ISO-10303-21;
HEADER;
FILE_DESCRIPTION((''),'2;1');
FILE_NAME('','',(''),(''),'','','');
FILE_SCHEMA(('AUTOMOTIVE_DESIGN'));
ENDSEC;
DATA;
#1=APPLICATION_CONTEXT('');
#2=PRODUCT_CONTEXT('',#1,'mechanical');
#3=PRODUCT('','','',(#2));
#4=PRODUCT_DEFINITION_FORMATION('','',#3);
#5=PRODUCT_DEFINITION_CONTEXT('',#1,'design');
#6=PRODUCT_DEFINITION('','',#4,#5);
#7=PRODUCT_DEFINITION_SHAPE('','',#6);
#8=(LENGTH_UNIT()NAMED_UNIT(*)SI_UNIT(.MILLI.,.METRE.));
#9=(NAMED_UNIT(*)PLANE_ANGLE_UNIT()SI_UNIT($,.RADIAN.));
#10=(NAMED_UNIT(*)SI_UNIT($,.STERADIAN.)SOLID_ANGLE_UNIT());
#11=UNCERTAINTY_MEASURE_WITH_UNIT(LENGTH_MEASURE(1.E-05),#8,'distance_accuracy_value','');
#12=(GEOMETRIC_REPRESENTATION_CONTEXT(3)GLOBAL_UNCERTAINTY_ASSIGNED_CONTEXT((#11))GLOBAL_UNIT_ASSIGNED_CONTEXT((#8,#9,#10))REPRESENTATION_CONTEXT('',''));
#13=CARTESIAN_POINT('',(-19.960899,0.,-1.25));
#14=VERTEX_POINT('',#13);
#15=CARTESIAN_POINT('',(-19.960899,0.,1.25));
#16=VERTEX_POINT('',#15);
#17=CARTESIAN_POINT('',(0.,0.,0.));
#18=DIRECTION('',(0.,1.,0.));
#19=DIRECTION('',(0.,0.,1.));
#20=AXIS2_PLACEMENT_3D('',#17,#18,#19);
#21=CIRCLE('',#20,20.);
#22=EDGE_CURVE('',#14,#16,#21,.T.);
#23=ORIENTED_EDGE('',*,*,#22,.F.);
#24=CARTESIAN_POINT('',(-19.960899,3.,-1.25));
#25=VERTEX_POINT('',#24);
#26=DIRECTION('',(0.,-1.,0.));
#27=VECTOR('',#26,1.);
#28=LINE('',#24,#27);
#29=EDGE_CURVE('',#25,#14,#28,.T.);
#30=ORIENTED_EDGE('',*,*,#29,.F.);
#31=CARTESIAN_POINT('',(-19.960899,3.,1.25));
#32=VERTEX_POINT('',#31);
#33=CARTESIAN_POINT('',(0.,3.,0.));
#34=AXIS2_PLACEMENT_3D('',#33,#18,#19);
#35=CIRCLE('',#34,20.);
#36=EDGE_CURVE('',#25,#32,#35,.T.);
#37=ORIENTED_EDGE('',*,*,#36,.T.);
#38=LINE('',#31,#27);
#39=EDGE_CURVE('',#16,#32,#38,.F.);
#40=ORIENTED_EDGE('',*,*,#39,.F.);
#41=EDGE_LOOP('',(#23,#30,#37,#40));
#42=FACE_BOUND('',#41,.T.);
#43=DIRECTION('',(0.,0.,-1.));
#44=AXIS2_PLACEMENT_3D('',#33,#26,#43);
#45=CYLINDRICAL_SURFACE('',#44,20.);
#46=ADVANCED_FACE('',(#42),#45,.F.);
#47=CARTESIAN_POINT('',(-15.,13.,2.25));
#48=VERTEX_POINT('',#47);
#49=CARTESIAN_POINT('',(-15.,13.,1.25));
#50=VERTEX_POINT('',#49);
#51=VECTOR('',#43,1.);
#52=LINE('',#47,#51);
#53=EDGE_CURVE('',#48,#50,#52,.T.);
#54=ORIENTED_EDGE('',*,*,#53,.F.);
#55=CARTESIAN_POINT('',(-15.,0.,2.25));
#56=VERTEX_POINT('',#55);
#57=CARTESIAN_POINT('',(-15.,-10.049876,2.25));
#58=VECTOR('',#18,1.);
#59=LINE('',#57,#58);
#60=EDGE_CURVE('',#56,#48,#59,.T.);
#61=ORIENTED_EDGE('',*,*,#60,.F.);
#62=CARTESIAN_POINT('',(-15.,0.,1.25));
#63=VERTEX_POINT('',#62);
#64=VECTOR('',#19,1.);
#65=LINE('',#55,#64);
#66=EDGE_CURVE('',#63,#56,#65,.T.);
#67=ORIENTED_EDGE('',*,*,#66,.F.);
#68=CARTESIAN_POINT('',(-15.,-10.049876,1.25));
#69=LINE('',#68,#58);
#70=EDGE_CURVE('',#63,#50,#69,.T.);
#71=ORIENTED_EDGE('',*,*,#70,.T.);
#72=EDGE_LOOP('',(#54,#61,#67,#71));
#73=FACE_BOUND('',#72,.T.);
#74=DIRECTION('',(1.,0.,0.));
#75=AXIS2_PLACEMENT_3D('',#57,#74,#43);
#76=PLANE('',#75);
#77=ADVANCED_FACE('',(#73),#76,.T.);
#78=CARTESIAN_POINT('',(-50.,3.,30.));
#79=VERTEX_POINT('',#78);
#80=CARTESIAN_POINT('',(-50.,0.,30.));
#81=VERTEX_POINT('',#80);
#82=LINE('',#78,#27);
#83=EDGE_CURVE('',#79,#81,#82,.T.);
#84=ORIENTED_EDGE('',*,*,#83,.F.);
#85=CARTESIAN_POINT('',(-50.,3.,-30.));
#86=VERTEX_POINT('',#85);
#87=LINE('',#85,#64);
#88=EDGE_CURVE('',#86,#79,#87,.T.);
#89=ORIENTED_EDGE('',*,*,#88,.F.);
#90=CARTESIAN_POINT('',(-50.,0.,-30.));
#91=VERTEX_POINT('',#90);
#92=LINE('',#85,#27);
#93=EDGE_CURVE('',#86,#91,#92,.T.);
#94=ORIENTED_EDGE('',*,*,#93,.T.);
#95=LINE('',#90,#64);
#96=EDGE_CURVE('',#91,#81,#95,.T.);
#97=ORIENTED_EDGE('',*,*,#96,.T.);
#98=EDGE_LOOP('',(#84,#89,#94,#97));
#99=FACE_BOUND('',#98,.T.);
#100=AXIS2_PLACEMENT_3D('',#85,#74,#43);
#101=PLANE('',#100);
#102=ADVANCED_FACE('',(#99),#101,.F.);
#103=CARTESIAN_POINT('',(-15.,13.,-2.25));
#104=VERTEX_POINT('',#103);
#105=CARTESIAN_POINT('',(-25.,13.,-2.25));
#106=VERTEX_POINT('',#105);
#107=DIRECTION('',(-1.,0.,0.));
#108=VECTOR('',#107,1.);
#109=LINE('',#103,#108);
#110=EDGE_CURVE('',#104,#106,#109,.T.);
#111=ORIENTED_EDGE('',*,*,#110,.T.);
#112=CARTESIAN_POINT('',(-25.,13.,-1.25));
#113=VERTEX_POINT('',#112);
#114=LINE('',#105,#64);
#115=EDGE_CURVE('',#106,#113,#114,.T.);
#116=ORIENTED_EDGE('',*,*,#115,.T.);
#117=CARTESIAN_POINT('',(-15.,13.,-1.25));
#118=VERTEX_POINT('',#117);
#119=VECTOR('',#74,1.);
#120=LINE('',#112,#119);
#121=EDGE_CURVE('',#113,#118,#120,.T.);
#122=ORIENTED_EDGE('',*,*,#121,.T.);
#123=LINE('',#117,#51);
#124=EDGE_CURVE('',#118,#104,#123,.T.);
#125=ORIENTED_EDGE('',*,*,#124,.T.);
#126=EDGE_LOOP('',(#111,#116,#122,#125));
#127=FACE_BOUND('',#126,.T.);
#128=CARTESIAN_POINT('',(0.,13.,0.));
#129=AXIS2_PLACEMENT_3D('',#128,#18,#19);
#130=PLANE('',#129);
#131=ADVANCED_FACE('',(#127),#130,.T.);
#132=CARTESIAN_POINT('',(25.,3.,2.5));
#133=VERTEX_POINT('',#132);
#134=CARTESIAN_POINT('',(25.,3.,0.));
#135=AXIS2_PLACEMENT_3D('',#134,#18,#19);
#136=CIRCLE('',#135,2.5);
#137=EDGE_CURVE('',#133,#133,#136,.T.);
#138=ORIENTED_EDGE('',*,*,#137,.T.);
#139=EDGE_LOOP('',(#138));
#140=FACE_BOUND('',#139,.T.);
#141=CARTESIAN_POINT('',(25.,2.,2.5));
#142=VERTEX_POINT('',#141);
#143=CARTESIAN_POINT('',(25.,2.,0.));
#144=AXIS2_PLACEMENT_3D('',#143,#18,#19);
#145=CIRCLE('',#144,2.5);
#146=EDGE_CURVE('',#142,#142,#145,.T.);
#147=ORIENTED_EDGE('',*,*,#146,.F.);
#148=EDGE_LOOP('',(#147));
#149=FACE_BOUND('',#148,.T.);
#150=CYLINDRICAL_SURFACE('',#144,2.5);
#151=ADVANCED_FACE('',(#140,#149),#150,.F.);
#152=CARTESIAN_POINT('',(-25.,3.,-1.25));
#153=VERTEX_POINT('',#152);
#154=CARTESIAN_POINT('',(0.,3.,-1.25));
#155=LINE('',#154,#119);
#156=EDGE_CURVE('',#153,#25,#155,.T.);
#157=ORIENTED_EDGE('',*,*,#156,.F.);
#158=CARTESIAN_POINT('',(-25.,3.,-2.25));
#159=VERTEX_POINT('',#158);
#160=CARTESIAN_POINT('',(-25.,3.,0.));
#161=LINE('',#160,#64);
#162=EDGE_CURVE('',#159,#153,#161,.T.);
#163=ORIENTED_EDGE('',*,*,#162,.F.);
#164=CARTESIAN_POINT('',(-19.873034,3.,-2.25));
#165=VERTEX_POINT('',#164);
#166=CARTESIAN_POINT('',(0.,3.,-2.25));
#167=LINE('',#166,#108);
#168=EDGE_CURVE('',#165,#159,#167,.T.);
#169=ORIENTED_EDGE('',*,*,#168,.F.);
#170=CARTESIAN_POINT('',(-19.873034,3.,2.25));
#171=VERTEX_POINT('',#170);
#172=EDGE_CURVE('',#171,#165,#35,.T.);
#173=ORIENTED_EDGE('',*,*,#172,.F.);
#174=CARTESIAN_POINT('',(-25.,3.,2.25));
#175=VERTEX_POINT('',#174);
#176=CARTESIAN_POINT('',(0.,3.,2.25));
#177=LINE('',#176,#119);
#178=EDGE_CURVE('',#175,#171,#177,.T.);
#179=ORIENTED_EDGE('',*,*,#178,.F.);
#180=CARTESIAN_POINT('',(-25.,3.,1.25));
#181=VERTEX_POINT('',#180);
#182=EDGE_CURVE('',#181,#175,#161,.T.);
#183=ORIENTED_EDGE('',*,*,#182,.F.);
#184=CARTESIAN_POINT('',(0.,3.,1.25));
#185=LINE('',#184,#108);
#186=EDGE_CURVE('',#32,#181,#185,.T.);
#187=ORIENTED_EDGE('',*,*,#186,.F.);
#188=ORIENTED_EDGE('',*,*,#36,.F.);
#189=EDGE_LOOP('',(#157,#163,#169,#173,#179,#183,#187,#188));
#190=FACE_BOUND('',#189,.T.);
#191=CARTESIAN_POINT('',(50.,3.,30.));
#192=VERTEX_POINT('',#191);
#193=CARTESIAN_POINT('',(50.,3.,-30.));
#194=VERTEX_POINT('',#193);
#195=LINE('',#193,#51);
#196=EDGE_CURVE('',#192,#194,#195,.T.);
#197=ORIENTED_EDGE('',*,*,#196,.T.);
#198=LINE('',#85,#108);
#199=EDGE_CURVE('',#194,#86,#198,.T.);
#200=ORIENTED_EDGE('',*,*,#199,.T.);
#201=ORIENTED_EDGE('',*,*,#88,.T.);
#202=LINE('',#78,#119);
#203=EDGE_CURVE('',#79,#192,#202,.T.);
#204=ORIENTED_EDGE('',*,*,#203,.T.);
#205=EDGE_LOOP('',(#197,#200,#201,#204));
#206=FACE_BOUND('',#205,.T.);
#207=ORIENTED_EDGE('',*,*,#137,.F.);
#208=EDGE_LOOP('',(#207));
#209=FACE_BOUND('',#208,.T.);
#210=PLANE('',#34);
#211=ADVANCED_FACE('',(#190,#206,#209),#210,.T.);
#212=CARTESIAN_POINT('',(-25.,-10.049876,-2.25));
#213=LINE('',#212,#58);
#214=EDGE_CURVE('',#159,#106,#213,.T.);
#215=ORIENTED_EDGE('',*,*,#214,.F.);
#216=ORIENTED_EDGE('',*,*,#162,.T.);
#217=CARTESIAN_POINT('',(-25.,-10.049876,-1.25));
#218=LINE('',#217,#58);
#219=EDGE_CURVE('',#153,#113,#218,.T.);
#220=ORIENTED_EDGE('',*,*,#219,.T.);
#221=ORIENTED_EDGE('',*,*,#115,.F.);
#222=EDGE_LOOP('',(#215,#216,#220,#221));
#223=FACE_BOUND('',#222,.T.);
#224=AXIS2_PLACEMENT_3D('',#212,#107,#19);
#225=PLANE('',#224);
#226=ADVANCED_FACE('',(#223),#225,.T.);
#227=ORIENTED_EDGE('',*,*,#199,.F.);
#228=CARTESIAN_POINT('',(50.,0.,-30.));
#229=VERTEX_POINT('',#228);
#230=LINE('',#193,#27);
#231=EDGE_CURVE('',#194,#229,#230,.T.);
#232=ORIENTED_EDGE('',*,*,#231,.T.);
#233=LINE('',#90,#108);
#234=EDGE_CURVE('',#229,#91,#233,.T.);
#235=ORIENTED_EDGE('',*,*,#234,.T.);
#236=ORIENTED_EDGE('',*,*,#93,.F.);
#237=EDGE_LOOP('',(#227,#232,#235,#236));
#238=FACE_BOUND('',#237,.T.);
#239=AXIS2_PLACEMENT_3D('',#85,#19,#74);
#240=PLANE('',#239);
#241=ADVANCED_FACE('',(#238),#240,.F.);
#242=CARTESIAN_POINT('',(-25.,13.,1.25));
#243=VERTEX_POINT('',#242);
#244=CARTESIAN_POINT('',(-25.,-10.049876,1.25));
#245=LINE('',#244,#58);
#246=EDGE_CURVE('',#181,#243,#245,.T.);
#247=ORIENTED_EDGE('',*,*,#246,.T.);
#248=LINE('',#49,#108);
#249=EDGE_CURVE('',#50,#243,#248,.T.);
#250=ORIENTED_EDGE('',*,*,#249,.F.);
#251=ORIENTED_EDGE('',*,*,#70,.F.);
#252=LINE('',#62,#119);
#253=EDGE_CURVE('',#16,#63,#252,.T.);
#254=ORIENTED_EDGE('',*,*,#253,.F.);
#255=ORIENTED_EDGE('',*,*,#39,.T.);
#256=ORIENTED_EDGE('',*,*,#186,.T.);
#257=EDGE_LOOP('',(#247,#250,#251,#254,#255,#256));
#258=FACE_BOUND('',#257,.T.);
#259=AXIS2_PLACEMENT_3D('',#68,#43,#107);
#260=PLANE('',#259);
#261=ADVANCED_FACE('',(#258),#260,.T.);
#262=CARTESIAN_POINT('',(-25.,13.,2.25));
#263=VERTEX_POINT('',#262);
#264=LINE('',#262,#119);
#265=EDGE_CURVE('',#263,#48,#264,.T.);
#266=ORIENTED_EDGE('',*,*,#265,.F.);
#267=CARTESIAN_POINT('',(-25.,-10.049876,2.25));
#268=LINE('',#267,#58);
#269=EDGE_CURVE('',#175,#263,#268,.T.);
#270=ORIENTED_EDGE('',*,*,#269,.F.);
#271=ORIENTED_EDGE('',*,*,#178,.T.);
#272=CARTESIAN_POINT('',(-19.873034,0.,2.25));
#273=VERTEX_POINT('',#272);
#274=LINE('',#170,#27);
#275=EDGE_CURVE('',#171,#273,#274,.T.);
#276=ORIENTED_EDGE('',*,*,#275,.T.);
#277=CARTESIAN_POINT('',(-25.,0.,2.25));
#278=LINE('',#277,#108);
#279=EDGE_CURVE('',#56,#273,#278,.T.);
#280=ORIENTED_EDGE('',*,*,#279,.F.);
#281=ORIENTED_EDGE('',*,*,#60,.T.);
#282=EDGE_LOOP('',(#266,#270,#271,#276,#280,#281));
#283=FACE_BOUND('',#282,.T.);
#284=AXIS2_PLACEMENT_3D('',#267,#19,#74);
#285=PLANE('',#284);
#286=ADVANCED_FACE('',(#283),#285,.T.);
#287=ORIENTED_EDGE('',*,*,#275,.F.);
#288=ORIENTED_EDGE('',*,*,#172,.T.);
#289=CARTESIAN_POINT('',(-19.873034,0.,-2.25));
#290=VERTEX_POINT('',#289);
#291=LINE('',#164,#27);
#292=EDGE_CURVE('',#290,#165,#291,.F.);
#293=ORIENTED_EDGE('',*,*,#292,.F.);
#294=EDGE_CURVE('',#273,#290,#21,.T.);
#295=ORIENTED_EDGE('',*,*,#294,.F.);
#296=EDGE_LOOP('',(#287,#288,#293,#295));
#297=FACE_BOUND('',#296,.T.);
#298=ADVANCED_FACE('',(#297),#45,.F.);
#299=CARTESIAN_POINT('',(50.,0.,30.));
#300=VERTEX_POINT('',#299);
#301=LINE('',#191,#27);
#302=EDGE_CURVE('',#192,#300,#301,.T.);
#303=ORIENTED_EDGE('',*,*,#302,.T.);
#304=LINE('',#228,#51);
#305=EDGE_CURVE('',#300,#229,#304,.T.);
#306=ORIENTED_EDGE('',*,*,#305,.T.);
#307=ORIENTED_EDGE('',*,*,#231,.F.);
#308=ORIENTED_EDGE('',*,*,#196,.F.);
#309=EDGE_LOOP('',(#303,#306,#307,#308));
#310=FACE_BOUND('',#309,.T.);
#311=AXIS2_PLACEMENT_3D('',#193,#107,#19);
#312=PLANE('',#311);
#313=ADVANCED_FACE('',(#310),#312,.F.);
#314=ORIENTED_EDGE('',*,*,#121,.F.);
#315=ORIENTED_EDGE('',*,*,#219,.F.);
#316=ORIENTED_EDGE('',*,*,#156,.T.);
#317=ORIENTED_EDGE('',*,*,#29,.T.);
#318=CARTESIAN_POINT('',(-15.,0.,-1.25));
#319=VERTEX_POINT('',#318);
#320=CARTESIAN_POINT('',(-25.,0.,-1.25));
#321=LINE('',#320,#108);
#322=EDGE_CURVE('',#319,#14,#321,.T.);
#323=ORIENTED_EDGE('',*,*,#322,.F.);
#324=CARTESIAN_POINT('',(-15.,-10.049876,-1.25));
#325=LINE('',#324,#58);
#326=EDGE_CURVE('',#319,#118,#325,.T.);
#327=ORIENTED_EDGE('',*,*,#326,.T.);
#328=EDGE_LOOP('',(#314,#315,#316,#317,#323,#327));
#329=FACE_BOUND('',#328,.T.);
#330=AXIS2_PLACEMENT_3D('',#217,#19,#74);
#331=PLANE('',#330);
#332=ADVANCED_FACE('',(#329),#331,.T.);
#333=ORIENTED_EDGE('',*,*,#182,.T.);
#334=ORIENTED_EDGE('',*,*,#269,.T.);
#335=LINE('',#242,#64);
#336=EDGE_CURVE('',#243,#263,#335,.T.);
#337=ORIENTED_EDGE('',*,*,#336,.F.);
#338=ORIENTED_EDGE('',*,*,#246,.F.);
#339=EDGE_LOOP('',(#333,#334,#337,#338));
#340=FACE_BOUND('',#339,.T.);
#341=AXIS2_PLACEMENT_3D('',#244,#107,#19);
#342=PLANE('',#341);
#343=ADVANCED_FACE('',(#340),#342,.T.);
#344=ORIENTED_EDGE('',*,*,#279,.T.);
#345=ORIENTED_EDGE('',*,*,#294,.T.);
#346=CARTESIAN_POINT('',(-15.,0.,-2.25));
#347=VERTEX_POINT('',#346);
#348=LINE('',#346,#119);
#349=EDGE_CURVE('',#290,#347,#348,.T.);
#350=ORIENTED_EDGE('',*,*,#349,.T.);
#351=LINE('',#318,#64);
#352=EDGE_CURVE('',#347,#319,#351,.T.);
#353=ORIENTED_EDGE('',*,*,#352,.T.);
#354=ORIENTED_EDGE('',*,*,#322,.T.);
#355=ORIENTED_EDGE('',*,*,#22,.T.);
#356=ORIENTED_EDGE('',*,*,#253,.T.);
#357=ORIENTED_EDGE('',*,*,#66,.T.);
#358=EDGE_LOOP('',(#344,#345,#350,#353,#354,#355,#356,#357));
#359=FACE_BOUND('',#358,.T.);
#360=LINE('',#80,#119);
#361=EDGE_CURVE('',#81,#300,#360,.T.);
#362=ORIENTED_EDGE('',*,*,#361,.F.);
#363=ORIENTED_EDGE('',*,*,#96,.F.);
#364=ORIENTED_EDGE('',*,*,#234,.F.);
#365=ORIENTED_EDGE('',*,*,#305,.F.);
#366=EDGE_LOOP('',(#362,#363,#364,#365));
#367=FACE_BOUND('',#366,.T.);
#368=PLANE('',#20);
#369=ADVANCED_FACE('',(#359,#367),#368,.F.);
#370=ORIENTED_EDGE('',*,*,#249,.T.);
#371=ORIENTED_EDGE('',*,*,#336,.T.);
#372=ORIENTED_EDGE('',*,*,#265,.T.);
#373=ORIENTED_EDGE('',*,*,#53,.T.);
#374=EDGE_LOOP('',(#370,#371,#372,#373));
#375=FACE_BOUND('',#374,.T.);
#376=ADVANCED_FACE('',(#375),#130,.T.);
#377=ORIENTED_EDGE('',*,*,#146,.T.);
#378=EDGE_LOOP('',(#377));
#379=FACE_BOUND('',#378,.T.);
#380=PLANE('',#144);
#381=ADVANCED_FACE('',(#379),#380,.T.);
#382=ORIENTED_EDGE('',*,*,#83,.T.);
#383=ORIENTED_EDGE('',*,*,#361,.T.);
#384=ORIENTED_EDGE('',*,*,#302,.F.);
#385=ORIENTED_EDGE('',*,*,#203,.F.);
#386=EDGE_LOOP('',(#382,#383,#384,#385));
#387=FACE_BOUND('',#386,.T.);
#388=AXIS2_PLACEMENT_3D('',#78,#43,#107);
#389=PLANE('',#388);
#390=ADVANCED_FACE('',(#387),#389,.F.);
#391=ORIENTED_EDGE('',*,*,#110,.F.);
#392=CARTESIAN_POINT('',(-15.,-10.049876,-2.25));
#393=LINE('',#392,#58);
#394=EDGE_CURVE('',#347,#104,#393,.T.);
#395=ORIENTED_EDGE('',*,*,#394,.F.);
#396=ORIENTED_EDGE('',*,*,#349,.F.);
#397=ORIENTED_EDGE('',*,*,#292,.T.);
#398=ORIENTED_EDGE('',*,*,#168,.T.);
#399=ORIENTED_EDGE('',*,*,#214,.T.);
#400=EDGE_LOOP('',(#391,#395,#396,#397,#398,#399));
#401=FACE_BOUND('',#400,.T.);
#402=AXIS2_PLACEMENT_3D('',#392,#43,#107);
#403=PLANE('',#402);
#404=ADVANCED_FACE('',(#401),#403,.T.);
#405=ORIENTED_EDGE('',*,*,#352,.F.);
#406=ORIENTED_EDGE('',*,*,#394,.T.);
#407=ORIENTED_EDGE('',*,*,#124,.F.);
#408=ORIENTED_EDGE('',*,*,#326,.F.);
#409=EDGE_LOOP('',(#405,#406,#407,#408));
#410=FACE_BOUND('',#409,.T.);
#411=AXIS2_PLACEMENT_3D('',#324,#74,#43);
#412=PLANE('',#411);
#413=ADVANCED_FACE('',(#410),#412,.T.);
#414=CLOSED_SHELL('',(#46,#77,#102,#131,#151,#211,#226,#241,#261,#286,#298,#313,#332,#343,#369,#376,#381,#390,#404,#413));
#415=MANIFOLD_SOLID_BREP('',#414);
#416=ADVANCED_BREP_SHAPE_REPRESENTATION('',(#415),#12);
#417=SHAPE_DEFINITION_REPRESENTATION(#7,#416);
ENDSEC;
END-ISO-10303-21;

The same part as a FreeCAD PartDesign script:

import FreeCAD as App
import Part
import Sketcher
Q = App.Units.Quantity


def add_polygon(sketch, points):
    """Adds a closed chain of lines whose ends are joined by coincident constraints."""
    first, n = sketch.GeometryCount, len(points)
    for a, b in zip(points, points[1:] + points[:1]):
        sketch.addGeometry(Part.LineSegment(App.Vector(*a, 0), App.Vector(*b, 0)), False)
    for i in range(n):
        sketch.addConstraint(Sketcher.Constraint("Coincident", first + i, 2, first + (i + 1) % n, 1))

doc = App.newDocument("Part")
params = doc.addObject("Spreadsheet::Sheet", "Params")
for row, (alias, value) in enumerate([
    ("sketch1_diameter", "40 mm"),
    ("sketch1_width", "100 mm"),
    ("sketch1_height", "60 mm"),
    ("pad1_length", "3 mm"),
    ("sketch2_width", "10 mm"),
    ("sketch2_height", "1 mm"),
    ("pad2_length", "10 mm"),
    ("pad2_length2", "3 mm"),
    ("sketch3_diameter", "5 mm"),
    ("pocket1_length", "1 mm"),
], start=1):
    params.set(f"A{row}", alias)
    params.set(f"B{row}", "=" + value)
    params.setAlias(f"B{row}", alias)

body = doc.addObject("PartDesign::Body", "Body")

# Sketch on XZ plane
sketch1 = doc.addObject("Sketcher::SketchObject", "Sketch")
body.addObject(sketch1)
sketch1.AttachmentSupport = (doc.XZ_Plane, [""])
sketch1.MapMode = "FlatFace"
add_polygon(sketch1, [(-50, -30), (-50, 30), (50, 30), (50, -30)])  # lines 0-3
sketch1.addGeometry(Part.Circle(App.Vector(0, 0, 0), App.Vector(0, 0, 1), 20), False)  # 4
sketch1.addConstraint([
    Sketcher.Constraint("Vertical", 0),
    Sketcher.Constraint("Horizontal", 1),
    Sketcher.Constraint("Vertical", 2),
    Sketcher.Constraint("Horizontal", 3),
    Sketcher.Constraint("Coincident", 4, 3, -1, 1),
    Sketcher.Constraint("Symmetric", 0, 2, 2, 2, -1, 1),
    Sketcher.Constraint("Diameter", 4, Q("40 mm")),
    Sketcher.Constraint("DistanceX", 1, 1, 1, 2, Q("100 mm")),
    Sketcher.Constraint("DistanceY", 0, 1, 0, 2, Q("60 mm")),
])
sketch1.setExpression("Constraints[10]", "Params.sketch1_diameter")
sketch1.setExpression("Constraints[11]", "Params.sketch1_width")
sketch1.setExpression("Constraints[12]", "Params.sketch1_height")
pad1 = doc.addObject("PartDesign::Pad", "Pad")
body.addObject(pad1)
pad1.Profile = sketch1
pad1.setExpression("Length", "Params.pad1_length")
pad1.Reversed = True

# Sketch on XZ plane
sketch2 = doc.addObject("Sketcher::SketchObject", "Sketch001")
body.addObject(sketch2)
sketch2.AttachmentSupport = (doc.XZ_Plane, [""])
sketch2.MapMode = "FlatFace"
sketch2.AttachmentOffset = App.Placement(App.Vector(0, 0, -3), App.Rotation())
add_polygon(sketch2, [(-25, -2.25), (-25, -1.25), (-15, -1.25), (-15, -2.25)])  # lines 0-3
add_polygon(sketch2, [(-25, 1.25), (-25, 2.25), (-15, 2.25), (-15, 1.25)])  # lines 4-7
sketch2.addConstraint([
    Sketcher.Constraint("Vertical", 0),
    Sketcher.Constraint("Horizontal", 1),
    Sketcher.Constraint("Vertical", 2),
    Sketcher.Constraint("Horizontal", 3),
    Sketcher.Constraint("Vertical", 4),
    Sketcher.Constraint("Horizontal", 5),
    Sketcher.Constraint("Vertical", 6),
    Sketcher.Constraint("Horizontal", 7),
    Sketcher.Constraint("Symmetric", 3, 2, 4, 2, -1),
    Sketcher.Constraint("Symmetric", 1, 2, 6, 2, -1),
    Sketcher.Constraint("DistanceX", 1, 1, 1, 2, Q("10 mm")),
    Sketcher.Constraint("DistanceY", 0, 1, 0, 2, Q("1 mm")),
    Sketcher.Constraint("DistanceX", 0, 2, -1, 1, Q("25 mm")),
    Sketcher.Constraint("DistanceY", 0, 2, 4, 2, Q("3.5 mm")),
])
sketch2.setExpression("Constraints[18]", "Params.sketch2_width")
sketch2.setExpression("Constraints[19]", "Params.sketch2_height")
pad2 = doc.addObject("PartDesign::Pad", "Pad001")
body.addObject(pad2)
pad2.Profile = sketch2
pad2.Type = "TwoLengths"
pad2.setExpression("Length", "Params.pad2_length")
pad2.setExpression("Length2", "Params.pad2_length2")
pad2.Reversed = True

# Sketch on XZ plane
sketch3 = doc.addObject("Sketcher::SketchObject", "Sketch002")
body.addObject(sketch3)
sketch3.AttachmentSupport = (doc.XZ_Plane, [""])
sketch3.MapMode = "FlatFace"
sketch3.AttachmentOffset = App.Placement(App.Vector(0, 0, -3), App.Rotation())
sketch3.addGeometry(Part.Circle(App.Vector(25, 0, 0), App.Vector(0, 0, 1), 2.5), False)
sketch3.addConstraint([
    Sketcher.Constraint("PointOnObject", 0, 3, -1),
    Sketcher.Constraint("Diameter", 0, Q("5 mm")),
    Sketcher.Constraint("DistanceX", -1, 1, 0, 3, Q("25 mm")),
])
sketch3.setExpression("Constraints[1]", "Params.sketch3_diameter")
pocket1 = doc.addObject("PartDesign::Pocket", "Pocket")
body.addObject(pocket1)
pocket1.Profile = sketch3
pocket1.setExpression("Length", "Params.pocket1_length")
pocket1.Reversed = True

doc.recompute()
